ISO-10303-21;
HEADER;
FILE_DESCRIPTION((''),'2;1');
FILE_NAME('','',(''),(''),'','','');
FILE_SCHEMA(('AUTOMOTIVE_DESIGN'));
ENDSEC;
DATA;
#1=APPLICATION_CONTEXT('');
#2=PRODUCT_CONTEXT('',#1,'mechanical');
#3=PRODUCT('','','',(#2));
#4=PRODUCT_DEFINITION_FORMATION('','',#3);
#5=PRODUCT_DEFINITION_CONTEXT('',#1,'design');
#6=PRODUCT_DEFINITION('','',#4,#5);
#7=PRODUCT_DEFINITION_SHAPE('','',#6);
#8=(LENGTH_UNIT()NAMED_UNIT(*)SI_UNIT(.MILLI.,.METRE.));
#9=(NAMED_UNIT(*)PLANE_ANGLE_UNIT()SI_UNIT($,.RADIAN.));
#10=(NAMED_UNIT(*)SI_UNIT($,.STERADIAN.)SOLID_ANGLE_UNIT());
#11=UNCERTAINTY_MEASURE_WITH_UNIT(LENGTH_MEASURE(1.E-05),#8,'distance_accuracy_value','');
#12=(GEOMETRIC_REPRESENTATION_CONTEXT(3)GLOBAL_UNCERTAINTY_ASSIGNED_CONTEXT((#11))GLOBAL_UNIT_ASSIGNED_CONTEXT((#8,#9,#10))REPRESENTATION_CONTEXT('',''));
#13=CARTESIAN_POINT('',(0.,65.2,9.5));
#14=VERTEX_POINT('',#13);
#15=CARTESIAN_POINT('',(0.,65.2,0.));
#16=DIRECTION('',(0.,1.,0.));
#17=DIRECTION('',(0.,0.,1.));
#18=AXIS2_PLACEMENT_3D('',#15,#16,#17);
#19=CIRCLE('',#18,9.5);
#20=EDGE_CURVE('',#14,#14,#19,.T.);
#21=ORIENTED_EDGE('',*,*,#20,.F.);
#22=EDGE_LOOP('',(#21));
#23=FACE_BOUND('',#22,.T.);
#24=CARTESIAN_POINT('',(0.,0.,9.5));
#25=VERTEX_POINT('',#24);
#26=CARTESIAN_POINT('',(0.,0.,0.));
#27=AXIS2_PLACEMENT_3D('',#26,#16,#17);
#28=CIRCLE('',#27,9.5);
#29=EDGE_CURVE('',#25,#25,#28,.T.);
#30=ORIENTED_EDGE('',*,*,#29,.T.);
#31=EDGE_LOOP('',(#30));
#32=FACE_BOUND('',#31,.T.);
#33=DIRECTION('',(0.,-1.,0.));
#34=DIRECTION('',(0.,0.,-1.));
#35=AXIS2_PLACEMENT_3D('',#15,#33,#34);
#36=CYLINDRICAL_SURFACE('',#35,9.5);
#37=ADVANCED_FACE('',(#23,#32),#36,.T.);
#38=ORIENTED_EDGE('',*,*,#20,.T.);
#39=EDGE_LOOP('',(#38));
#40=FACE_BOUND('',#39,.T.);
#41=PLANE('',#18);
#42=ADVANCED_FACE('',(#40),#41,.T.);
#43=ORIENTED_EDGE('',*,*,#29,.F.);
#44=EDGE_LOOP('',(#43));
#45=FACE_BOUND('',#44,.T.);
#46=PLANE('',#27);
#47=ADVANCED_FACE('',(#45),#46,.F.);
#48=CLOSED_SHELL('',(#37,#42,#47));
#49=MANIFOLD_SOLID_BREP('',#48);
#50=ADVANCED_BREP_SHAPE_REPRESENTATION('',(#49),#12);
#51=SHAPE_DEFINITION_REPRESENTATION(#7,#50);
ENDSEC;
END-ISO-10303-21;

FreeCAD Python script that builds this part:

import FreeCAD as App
import Part
import Sketcher
from FreeCAD import Vector

doc = App.newDocument("Part")
body = doc.addObject("PartDesign::Body", "Body")

sketch1 = body.newObject("Sketcher::SketchObject", "Sketch")
sketch1.AttachmentSupport = (doc.getObject("XZ_Plane"), [""])
sketch1.MapMode = "FlatFace"
sketch1.addGeometry(Part.Circle(Vector(0, 0, 0), Vector(0, 0, 1), 9.5), False)
sketch1.addConstraint([
    Sketcher.Constraint("Coincident", 0, 3, -1, 1),
    Sketcher.Constraint("Diameter", 0, 19.0),
])
pad1 = body.newObject("PartDesign::Pad", "Pad")
pad1.Profile = sketch1
pad1.Length = 65.2
pad1.Reversed = True

doc.recompute()
